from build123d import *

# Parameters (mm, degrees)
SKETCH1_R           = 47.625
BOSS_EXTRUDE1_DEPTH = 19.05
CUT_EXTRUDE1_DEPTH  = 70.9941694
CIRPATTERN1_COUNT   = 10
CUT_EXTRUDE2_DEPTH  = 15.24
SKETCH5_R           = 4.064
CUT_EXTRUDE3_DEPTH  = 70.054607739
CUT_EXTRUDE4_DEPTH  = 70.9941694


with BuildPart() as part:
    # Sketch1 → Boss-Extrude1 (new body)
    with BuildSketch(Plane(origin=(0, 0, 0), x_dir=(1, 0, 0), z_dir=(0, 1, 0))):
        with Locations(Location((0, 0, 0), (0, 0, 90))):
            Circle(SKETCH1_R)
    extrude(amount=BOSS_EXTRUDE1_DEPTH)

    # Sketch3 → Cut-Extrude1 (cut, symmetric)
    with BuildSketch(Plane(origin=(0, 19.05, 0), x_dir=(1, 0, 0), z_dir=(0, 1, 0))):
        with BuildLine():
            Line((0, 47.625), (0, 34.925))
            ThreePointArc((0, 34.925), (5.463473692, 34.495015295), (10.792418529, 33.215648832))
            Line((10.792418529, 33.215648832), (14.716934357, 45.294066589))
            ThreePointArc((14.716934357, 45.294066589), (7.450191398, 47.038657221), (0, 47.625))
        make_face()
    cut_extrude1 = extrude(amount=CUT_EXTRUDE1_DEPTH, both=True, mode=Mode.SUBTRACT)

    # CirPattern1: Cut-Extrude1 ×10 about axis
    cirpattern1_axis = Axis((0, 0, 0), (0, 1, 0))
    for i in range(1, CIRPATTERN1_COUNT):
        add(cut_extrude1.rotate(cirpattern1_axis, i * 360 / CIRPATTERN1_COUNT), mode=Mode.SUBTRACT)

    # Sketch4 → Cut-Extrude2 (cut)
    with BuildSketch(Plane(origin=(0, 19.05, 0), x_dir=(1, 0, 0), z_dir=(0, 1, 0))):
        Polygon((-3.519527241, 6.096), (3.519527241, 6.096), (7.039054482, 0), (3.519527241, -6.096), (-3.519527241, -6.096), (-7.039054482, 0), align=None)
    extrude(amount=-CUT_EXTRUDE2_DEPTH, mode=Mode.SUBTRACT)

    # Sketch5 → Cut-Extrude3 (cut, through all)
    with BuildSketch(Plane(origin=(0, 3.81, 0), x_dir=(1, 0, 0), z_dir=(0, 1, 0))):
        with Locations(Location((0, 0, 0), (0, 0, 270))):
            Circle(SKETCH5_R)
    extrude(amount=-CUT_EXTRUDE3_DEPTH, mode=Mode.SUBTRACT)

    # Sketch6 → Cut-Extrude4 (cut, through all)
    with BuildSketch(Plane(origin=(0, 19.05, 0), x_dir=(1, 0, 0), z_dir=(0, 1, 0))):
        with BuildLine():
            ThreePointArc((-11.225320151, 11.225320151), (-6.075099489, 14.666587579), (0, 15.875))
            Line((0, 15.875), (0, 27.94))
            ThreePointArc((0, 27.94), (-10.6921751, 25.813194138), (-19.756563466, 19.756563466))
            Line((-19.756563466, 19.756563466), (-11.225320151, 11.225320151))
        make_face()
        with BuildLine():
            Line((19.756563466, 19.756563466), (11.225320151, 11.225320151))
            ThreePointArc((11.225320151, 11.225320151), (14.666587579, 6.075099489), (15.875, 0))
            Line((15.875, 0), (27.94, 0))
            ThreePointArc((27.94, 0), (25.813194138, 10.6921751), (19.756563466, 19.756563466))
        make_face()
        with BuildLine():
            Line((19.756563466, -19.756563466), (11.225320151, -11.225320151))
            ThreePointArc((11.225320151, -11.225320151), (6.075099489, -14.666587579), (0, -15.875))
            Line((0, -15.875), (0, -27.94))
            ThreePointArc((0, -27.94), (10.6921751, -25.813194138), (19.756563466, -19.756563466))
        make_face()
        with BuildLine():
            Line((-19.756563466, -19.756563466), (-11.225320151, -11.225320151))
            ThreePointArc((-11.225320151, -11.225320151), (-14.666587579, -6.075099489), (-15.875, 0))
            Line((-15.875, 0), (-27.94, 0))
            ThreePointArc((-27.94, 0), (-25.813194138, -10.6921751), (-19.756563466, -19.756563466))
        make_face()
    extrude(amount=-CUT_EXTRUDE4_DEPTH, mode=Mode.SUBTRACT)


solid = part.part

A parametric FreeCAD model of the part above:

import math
import FreeCAD as App
import Part
import Sketcher
Q = App.Units.Quantity

doc = App.newDocument("Part")
body = doc.addObject("PartDesign::Body", "Body")

sketch1 = body.newObject("Sketcher::SketchObject", "Sketch")
sketch1.AttachmentSupport = (doc.getObject("XZ_Plane"), [""])
sketch1.MapMode = "FlatFace"
sketch1.addGeometry(Part.Circle(App.Vector(0, 0, 0), App.Vector(0, 0, 1), 48), False)
sketch1.addConstraint([
    Sketcher.Constraint("Coincident", 0, 3, -1, 1),
    Sketcher.Constraint("Diameter", 0, Q("3.75 in")),
])
pad1 = body.newObject("PartDesign::Pad", "Pad")
pad1.Profile = sketch1
pad1.Length = Q("0.75 in")
pad1.Reversed = True

sketch2 = body.newObject("Sketcher::SketchObject", "Sketch001")
sketch2.AttachmentSupport = (doc.getObject("XZ_Plane"), [""])
sketch2.MapMode = "FlatFace"
sketch2.AttachmentOffset = App.Placement(App.Vector(0, 0, -0.75 * 25.4), App.Rotation())
sketch2.addGeometry([
    Part.LineSegment(App.Vector(0, -48, 0), App.Vector(0, -35, 0)),
    Part.ArcOfCircle(Part.Circle(App.Vector(0, 0, 0), App.Vector(0, 0, 1), 35), math.radians(-90), math.radians(-72)),
    Part.LineSegment(App.Vector(11, -33, 0), App.Vector(15, -45, 0)),
    Part.ArcOfCircle(Part.Circle(App.Vector(0, 0, 0), App.Vector(0, 0, 1), 48), math.radians(-90), math.radians(-72)),
], False)
sketch2.addConstraint([
    Sketcher.Constraint("Coincident", 0, 2, 1, 1),
    Sketcher.Constraint("Coincident", 1, 2, 2, 1),
    Sketcher.Constraint("Coincident", 2, 2, 3, 2),
    Sketcher.Constraint("Coincident", 3, 1, 0, 1),
    Sketcher.Constraint("Vertical", 0),
    Sketcher.Constraint("Coincident", 1, 3, -1, 1),
    Sketcher.Constraint("Coincident", 3, 3, -1, 1),
    Sketcher.Constraint("PointOnObject", 0, 2, -2),
    Sketcher.Constraint("DistanceY", 0, 1, 0, 2, Q("0.5 in")),
    Sketcher.Constraint("Angle", 2, Q("-72 deg")),
    Sketcher.Constraint("Radius", 1, Q("1.375 in")),
    Sketcher.Constraint("DistanceX", -1, 1, 1, 2, Q("10.792419 mm")),
])
pocket1 = body.newObject("PartDesign::Pocket", "Pocket")
pocket1.Profile = sketch2
pocket1.Length = 141.988339
pocket1.Midplane = True
doc.recompute()

polarpattern = body.newObject("PartDesign::PolarPattern", "PolarPattern")
polarpattern.Originals = [pocket1]
polarpattern.Axis = (doc.getObject("Y_Axis"), [""])
polarpattern.Angle = 360
polarpattern.Occurrences = 10
body.Tip = polarpattern

sketch3 = body.newObject("Sketcher::SketchObject", "Sketch002")
sketch3.AttachmentSupport = (doc.getObject("XZ_Plane"), [""])
sketch3.MapMode = "FlatFace"
sketch3.AttachmentOffset = App.Placement(App.Vector(0, 0, -0.75 * 25.4), App.Rotation())
sketch3.addGeometry([
    Part.LineSegment(App.Vector(4, -6, 0), App.Vector(-4, -6, 0)),
    Part.LineSegment(App.Vector(-4, -6, 0), App.Vector(-7, 0, 0)),
    Part.LineSegment(App.Vector(-7, 0, 0), App.Vector(-4, 6, 0)),
    Part.LineSegment(App.Vector(-4, 6, 0), App.Vector(4, 6, 0)),
    Part.LineSegment(App.Vector(4, 6, 0), App.Vector(7, 0, 0)),
    Part.LineSegment(App.Vector(7, 0, 0), App.Vector(4, -6, 0)),
], False)
sketch3.addConstraint([
    Sketcher.Constraint("Coincident", 0, 2, 1, 1),
    Sketcher.Constraint("Coincident", 1, 2, 2, 1),
    Sketcher.Constraint("Coincident", 2, 2, 3, 1),
    Sketcher.Constraint("Coincident", 3, 2, 4, 1),
    Sketcher.Constraint("Coincident", 4, 2, 5, 1),
    Sketcher.Constraint("Coincident", 5, 2, 0, 1),
    Sketcher.Constraint("Horizontal", 0),
    Sketcher.Constraint("Horizontal", 3),
    Sketcher.Constraint("Symmetric", 0, 2, 3, 2, -1, 1),
    Sketcher.Constraint("Symmetric", 1, 2, 4, 2, -1, 1),
    Sketcher.Constraint("PointOnObject", 1, 2, -1),
    Sketcher.Constraint("Parallel", 2, 5),
    Sketcher.Constraint("Vertical", 0, 2, 2, 2),
    Sketcher.Constraint("Angle", 1, Q("120 deg")),
    Sketcher.Constraint("DistanceY", 0, 2, -1, 1, Q("0.24 in")),
    Sketcher.Constraint("DistanceX", 0, 2, 0, 1, Q("7.039054 mm")),
])
pocket2 = body.newObject("PartDesign::Pocket", "Pocket001")
pocket2.Profile = sketch3
pocket2.Length = Q("0.6 in")
pocket2.Reversed = True

sketch4 = body.newObject("Sketcher::SketchObject", "Sketch003")
sketch4.AttachmentSupport = (doc.getObject("XZ_Plane"), [""])
sketch4.MapMode = "FlatFace"
sketch4.AttachmentOffset = App.Placement(App.Vector(0, 0, -0.15 * 25.4), App.Rotation())
sketch4.addGeometry(Part.Circle(App.Vector(0, 0, 0), App.Vector(0, 0, 1), 4.1), False)
sketch4.addConstraint([
    Sketcher.Constraint("Coincident", 0, 3, -1, 1),
    Sketcher.Constraint("Diameter", 0, Q("0.32 in")),
])
pocket3 = body.newObject("PartDesign::Pocket", "Pocket002")
pocket3.Profile = sketch4
pocket3.Type = "ThroughAll"
pocket3.Reversed = True

sketch5 = body.newObject("Sketcher::SketchObject", "Sketch004")
sketch5.AttachmentSupport = (doc.getObject("XZ_Plane"), [""])
sketch5.MapMode = "FlatFace"
sketch5.AttachmentOffset = App.Placement(App.Vector(0, 0, -0.75 * 25.4), App.Rotation())
sketch5.addGeometry([
    Part.ArcOfCircle(Part.Circle(App.Vector(0, 0, 0), App.Vector(0, 0, 1), 16), math.radians(-135), math.radians(-90)),
    Part.LineSegment(App.Vector(0, -16, 0), App.Vector(0, -28, 0)),
    Part.ArcOfCircle(Part.Circle(App.Vector(0, 0, 0), App.Vector(0, 0, 1), 28), math.radians(-135), math.radians(-90)),
    Part.LineSegment(App.Vector(-20, -20, 0), App.Vector(-11, -11, 0)),
    Part.LineSegment(App.Vector(20, -20, 0), App.Vector(11, -11, 0)),
    Part.ArcOfCircle(Part.Circle(App.Vector(0, 0, 0), App.Vector(0, 0, 1), 16), math.radians(-45), math.radians(0)),
    Part.LineSegment(App.Vector(16, 0, 0), App.Vector(28, 0, 0)),
    Part.ArcOfCircle(Part.Circle(App.Vector(0, 0, 0), App.Vector(0, 0, 1), 28), math.radians(-45), math.radians(0)),
    Part.LineSegment(App.Vector(20, 20, 0), App.Vector(11, 11, 0)),
    Part.ArcOfCircle(Part.Circle(App.Vector(0, 0, 0), App.Vector(0, 0, 1), 16), math.radians(45), math.radians(90)),
    Part.LineSegment(App.Vector(0, 16, 0), App.Vector(0, 28, 0)),
    Part.ArcOfCircle(Part.Circle(App.Vector(0, 0, 0), App.Vector(0, 0, 1), 28), math.radians(45), math.radians(90)),
    Part.LineSegment(App.Vector(-20, 20, 0), App.Vector(-11, 11, 0)),
    Part.ArcOfCircle(Part.Circle(App.Vector(0, 0, 0), App.Vector(0, 0, 1), 16), math.radians(135), math.radians(180)),
    Part.LineSegment(App.Vector(-16, 0, 0), App.Vector(-28, 0, 0)),
    Part.ArcOfCircle(Part.Circle(App.Vector(0, 0, 0), App.Vector(0, 0, 1), 28), math.radians(135), math.radians(180)),
], False)
sketch5.addConstraint([
    Sketcher.Constraint("Coincident", 0, 2, 1, 1),
    Sketcher.Constraint("Coincident", 1, 2, 2, 2),
    Sketcher.Constraint("Coincident", 2, 1, 3, 1),
    Sketcher.Constraint("Coincident", 3, 2, 0, 1),
    Sketcher.Constraint("Coincident", 4, 2, 5, 1),
    Sketcher.Constraint("Coincident", 5, 2, 6, 1),
    Sketcher.Constraint("Coincident", 6, 2, 7, 2),
    Sketcher.Constraint("Coincident", 7, 1, 4, 1),
    Sketcher.Constraint("Coincident", 8, 2, 9, 1),
    Sketcher.Constraint("Coincident", 9, 2, 10, 1),
    Sketcher.Constraint("Coincident", 10, 2, 11, 2),
    Sketcher.Constraint("Coincident", 11, 1, 8, 1),
    Sketcher.Constraint("Coincident", 12, 2, 13, 1),
    Sketcher.Constraint("Coincident", 13, 2, 14, 1),
    Sketcher.Constraint("Coincident", 14, 2, 15, 2),
    Sketcher.Constraint("Coincident", 15, 1, 12, 1),
    Sketcher.Constraint("Vertical", 1),
    Sketcher.Constraint("Horizontal", 6),
    Sketcher.Constraint("Vertical", 10),
    Sketcher.Constraint("Horizontal", 14),
    Sketcher.Constraint("Coincident", 0, 3, -1, 1),
    Sketcher.Constraint("Coincident", 2, 3, -1, 1),
    Sketcher.Constraint("Coincident", 5, 3, -1, 1),
    Sketcher.Constraint("Coincident", 7, 3, -1, 1),
    Sketcher.Constraint("Coincident", 9, 3, -1, 1),
    Sketcher.Constraint("Coincident", 11, 3, -1, 1),
    Sketcher.Constraint("Coincident", 13, 3, -1, 1),
    Sketcher.Constraint("Coincident", 15, 3, -1, 1),
    Sketcher.Constraint("Equal", 0, 5),
    Sketcher.Constraint("Equal", 2, 7),
    Sketcher.Constraint("Equal", 5, 9),
    Sketcher.Constraint("Equal", 7, 11),
    Sketcher.Constraint("Equal", 9, 13),
    Sketcher.Constraint("Equal", 11, 15),
    Sketcher.Constraint("PointOnObject", 0, 2, -2),
    Sketcher.Constraint("PointOnObject", 5, 2, -1),
    Sketcher.Constraint("PointOnObject", 9, 2, -2),
    Sketcher.Constraint("PointOnObject", 13, 2, -1),
    Sketcher.Constraint("Perpendicular", 3, 4),
    Sketcher.Constraint("Perpendicular", 4, 8),
    Sketcher.Constraint("Perpendicular", 8, 12),
    Sketcher.Constraint("Horizontal", 3, 2, 4, 2),
    Sketcher.Constraint("Horizontal", 2, 1, 7, 1),
    Sketcher.Constraint("Horizontal", 8, 2, 12, 2),
    Sketcher.Constraint("Vertical", 4, 2, 8, 2),
    Sketcher.Constraint("Radius", 2, Q("1.1 in")),
    Sketcher.Constraint("Radius", 0, Q("0.625 in")),
    Sketcher.Constraint("DistanceX", 3, 2, -1, 1, Q("11.22532 mm")),
])
pocket4 = body.newObject("PartDesign::Pocket", "Pocket003")
pocket4.Profile = sketch5
pocket4.Type = "ThroughAll"
pocket4.Reversed = True

doc.recompute()
